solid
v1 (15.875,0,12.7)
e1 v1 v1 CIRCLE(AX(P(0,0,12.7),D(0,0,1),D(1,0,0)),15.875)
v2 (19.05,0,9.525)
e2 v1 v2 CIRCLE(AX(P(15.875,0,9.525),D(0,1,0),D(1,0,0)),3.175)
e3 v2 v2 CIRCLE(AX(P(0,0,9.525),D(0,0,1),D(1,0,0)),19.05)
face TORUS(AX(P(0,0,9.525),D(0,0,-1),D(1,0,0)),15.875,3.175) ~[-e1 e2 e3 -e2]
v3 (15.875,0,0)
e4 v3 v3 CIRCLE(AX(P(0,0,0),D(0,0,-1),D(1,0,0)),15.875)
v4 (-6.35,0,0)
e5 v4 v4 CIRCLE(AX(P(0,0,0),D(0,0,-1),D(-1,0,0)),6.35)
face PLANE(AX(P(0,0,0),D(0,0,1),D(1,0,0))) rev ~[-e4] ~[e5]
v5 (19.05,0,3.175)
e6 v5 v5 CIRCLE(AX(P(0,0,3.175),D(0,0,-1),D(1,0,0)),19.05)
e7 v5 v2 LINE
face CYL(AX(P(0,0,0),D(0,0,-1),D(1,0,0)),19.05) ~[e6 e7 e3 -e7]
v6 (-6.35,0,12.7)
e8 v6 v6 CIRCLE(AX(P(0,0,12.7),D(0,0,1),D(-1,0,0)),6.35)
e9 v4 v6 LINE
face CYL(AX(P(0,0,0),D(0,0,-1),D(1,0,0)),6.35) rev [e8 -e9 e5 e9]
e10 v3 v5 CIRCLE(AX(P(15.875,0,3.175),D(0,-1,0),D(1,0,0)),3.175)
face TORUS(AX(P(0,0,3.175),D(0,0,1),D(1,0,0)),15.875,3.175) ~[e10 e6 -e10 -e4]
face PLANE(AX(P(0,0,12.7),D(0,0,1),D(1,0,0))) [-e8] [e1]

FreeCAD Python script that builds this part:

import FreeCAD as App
import Part
import Sketcher
Q = App.Units.Quantity


def edges_at(feature, points):
    """Names of the edges that pass closest to the given points."""
    edges = feature.Shape.Edges
    near = lambda p: min(range(len(edges)), key=lambda i: edges[i].distToShape(Part.Vertex(*p))[0])
    return sorted({f"Edge{near(p) + 1}" for p in points})

doc = App.newDocument("Part")
body = doc.addObject("PartDesign::Body", "Body")

sketch1 = body.newObject("Sketcher::SketchObject", "Sketch")
sketch1.AttachmentSupport = (doc.getObject("XY_Plane"), [""])
sketch1.MapMode = "FlatFace"
sketch1.addGeometry([
    Part.Circle(App.Vector(0, 0, 0), App.Vector(0, 0, 1), 19),
    Part.Circle(App.Vector(0, 0, 0), App.Vector(0, 0, 1), 6),
], False)
sketch1.addConstraint([
    Sketcher.Constraint("Coincident", 0, 3, -1, 1),
    Sketcher.Constraint("Coincident", 1, 3, -1, 1),
    Sketcher.Constraint("Diameter", 0, Q("1.5 in")),
    Sketcher.Constraint("Diameter", 1, Q("0.5 in")),
])
pad1 = body.newObject("PartDesign::Pad", "Pad")
pad1.Profile = sketch1
pad1.Length = Q("0.5 in")
doc.recompute()

fillet = body.newObject("PartDesign::Fillet", "Fillet")
fillet.Base = (pad1, edges_at(pad1, [(0, 19.05, 12.7), (0, 19.05, 0)]))
fillet.Radius = Q("0.125 in")

doc.recompute()
